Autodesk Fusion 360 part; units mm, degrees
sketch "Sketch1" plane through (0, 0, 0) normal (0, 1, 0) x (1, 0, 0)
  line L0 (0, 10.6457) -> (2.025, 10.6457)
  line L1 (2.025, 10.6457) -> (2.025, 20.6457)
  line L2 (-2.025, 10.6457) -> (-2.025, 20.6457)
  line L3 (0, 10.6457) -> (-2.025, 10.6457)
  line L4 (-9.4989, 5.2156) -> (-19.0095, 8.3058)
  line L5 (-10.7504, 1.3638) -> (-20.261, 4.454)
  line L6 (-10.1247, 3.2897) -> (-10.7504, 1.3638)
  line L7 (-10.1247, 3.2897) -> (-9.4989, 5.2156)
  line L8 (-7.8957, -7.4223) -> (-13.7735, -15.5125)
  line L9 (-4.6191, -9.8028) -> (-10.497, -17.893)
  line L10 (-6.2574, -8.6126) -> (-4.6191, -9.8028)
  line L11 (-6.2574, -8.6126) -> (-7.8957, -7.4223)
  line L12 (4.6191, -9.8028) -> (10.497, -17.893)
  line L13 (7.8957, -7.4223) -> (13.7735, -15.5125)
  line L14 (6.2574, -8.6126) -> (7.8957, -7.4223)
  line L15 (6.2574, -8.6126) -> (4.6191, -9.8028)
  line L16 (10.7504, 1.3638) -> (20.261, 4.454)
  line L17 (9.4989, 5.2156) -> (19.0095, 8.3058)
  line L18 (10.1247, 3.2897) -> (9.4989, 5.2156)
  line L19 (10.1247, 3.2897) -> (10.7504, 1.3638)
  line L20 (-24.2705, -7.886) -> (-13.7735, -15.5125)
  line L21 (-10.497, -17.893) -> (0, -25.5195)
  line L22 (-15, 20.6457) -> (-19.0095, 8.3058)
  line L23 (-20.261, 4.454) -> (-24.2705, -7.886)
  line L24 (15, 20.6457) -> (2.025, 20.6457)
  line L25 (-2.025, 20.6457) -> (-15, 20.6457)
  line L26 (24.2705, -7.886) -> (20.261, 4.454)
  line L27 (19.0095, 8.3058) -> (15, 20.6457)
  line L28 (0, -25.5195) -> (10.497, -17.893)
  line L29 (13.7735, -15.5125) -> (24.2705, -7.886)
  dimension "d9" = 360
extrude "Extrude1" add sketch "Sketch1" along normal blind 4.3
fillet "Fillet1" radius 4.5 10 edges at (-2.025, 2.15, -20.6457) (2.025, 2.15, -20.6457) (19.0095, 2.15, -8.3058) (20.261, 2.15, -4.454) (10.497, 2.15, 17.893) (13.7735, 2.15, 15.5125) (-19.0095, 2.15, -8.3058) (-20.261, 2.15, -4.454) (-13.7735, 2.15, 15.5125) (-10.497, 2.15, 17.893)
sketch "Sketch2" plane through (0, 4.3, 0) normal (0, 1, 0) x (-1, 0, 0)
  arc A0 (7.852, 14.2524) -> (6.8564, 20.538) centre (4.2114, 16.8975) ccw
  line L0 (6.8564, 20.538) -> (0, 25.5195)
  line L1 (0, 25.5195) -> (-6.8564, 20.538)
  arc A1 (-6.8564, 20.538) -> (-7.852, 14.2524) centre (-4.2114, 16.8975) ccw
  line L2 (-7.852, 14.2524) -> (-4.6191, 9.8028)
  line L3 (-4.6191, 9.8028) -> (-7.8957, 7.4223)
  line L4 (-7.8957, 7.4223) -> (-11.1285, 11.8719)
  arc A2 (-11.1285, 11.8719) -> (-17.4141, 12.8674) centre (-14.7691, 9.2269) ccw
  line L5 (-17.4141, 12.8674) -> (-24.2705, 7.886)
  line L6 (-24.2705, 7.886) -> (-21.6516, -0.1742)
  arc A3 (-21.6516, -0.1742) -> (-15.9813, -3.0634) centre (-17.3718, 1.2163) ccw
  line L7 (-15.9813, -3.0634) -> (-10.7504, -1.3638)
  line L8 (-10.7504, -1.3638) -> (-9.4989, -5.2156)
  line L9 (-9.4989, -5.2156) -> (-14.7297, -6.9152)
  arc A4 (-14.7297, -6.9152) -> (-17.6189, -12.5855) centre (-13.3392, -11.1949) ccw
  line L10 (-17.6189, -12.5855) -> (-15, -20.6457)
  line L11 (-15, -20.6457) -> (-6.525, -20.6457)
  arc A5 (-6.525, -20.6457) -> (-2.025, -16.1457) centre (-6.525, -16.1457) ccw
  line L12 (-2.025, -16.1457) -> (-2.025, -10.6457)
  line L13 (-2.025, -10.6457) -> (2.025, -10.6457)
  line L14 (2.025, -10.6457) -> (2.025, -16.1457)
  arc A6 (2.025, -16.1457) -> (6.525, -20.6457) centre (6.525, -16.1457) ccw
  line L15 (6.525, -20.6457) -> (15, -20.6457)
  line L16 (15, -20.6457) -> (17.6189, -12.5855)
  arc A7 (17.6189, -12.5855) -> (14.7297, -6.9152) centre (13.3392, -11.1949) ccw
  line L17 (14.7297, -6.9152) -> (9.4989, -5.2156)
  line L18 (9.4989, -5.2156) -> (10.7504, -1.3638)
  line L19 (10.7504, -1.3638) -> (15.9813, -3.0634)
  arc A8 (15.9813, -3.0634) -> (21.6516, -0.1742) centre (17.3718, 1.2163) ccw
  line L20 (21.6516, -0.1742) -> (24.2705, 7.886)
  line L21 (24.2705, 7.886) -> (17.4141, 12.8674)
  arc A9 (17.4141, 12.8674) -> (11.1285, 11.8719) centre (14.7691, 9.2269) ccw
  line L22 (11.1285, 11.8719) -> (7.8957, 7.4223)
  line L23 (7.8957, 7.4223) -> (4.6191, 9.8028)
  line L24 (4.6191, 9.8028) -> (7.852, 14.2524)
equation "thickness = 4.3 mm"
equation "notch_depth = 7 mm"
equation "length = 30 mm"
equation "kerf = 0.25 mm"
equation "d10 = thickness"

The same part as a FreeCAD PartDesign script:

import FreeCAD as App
import Part
import Sketcher
from FreeCAD import Vector
Q = App.Units.Quantity


def edges_at(feature, points):
    """Names of the edges that pass closest to the given points."""
    edges = feature.Shape.Edges
    near = lambda p: min(range(len(edges)), key=lambda i: edges[i].distToShape(Part.Vertex(*p))[0])
    return sorted({f"Edge{near(p) + 1}" for p in points})

doc = App.newDocument("Part")
body = doc.addObject("PartDesign::Body", "Body")

# Sketch on XZ plane
sketch1 = body.newObject("Sketcher::SketchObject", "Sketch")
sketch1.AttachmentSupport = (doc.getObject("XZ_Plane"), [""])
sketch1.MapMode = "FlatFace"
sketch1.addGeometry([
    Part.LineSegment(Vector(2.025, -10.6457, 0), Vector(-2.025, -10.6457, 0)),  # 0
    Part.LineSegment(Vector(-2.025, -10.6457, 0), Vector(-2.025, -20.6457, 0)),  # 1
    Part.LineSegment(Vector(-2.025, -20.6457, 0), Vector(-15, -20.6457, 0)),  # 2
    Part.LineSegment(Vector(-15, -20.6457, 0), Vector(-19.0095, -8.3058, 0)),  # 3
    Part.LineSegment(Vector(-19.0095, -8.3058, 0), Vector(-9.4989, -5.2156, 0)),  # 4
    Part.LineSegment(Vector(-9.4989, -5.2156, 0), Vector(-10.1247, -3.2897, 0)),  # 5
    Part.LineSegment(Vector(-10.1247, -3.2897, 0), Vector(-10.7504, -1.3638, 0)),  # 6
    Part.LineSegment(Vector(-10.7504, -1.3638, 0), Vector(-20.261, -4.454, 0)),  # 7
    Part.LineSegment(Vector(-20.261, -4.454, 0), Vector(-24.2705, 7.886, 0)),  # 8
    Part.LineSegment(Vector(-24.2705, 7.886, 0), Vector(-13.7735, 15.5125, 0)),  # 9
    Part.LineSegment(Vector(-13.7735, 15.5125, 0), Vector(-7.8957, 7.4223, 0)),  # 10
    Part.LineSegment(Vector(-7.8957, 7.4223, 0), Vector(-6.2574, 8.6126, 0)),  # 11
    Part.LineSegment(Vector(-6.2574, 8.6126, 0), Vector(-4.6191, 9.8028, 0)),  # 12
    Part.LineSegment(Vector(-4.6191, 9.8028, 0), Vector(-10.497, 17.893, 0)),  # 13
    Part.LineSegment(Vector(-10.497, 17.893, 0), Vector(0, 25.5195, 0)),  # 14
    Part.LineSegment(Vector(0, 25.5195, 0), Vector(10.497, 17.893, 0)),  # 15
    Part.LineSegment(Vector(10.497, 17.893, 0), Vector(4.6191, 9.8028, 0)),  # 16
    Part.LineSegment(Vector(4.6191, 9.8028, 0), Vector(6.2574, 8.6126, 0)),  # 17
    Part.LineSegment(Vector(6.2574, 8.6126, 0), Vector(7.8957, 7.4223, 0)),  # 18
    Part.LineSegment(Vector(7.8957, 7.4223, 0), Vector(13.7735, 15.5125, 0)),  # 19
    Part.LineSegment(Vector(13.7735, 15.5125, 0), Vector(24.2705, 7.886, 0)),  # 20
    Part.LineSegment(Vector(24.2705, 7.886, 0), Vector(20.261, -4.454, 0)),  # 21
    Part.LineSegment(Vector(20.261, -4.454, 0), Vector(10.7504, -1.3638, 0)),  # 22
    Part.LineSegment(Vector(10.7504, -1.3638, 0), Vector(10.1247, -3.2897, 0)),  # 23
    Part.LineSegment(Vector(10.1247, -3.2897, 0), Vector(9.4989, -5.2156, 0)),  # 24
    Part.LineSegment(Vector(9.4989, -5.2156, 0), Vector(19.0095, -8.3058, 0)),  # 25
    Part.LineSegment(Vector(19.0095, -8.3058, 0), Vector(15, -20.6457, 0)),  # 26
    Part.LineSegment(Vector(15, -20.6457, 0), Vector(2.025, -20.6457, 0)),  # 27
    Part.LineSegment(Vector(2.025, -20.6457, 0), Vector(2.025, -10.6457, 0)),  # 28
], False)
sketch1.addConstraint([
    Sketcher.Constraint("Coincident", 0, 2, 1, 1),
    Sketcher.Constraint("Coincident", 1, 2, 2, 1),
    Sketcher.Constraint("Coincident", 2, 2, 3, 1),
    Sketcher.Constraint("Coincident", 3, 2, 4, 1),
    Sketcher.Constraint("Coincident", 4, 2, 5, 1),
    Sketcher.Constraint("Coincident", 5, 2, 6, 1),
    Sketcher.Constraint("Coincident", 6, 2, 7, 1),
    Sketcher.Constraint("Coincident", 7, 2, 8, 1),
    Sketcher.Constraint("Coincident", 8, 2, 9, 1),
    Sketcher.Constraint("Coincident", 9, 2, 10, 1),
    Sketcher.Constraint("Coincident", 10, 2, 11, 1),
    Sketcher.Constraint("Coincident", 11, 2, 12, 1),
    Sketcher.Constraint("Coincident", 12, 2, 13, 1),
    Sketcher.Constraint("Coincident", 13, 2, 14, 1),
    Sketcher.Constraint("Coincident", 14, 2, 15, 1),
    Sketcher.Constraint("Coincident", 15, 2, 16, 1),
    Sketcher.Constraint("Coincident", 16, 2, 17, 1),
    Sketcher.Constraint("Coincident", 17, 2, 18, 1),
    Sketcher.Constraint("Coincident", 18, 2, 19, 1),
    Sketcher.Constraint("Coincident", 19, 2, 20, 1),
    Sketcher.Constraint("Coincident", 20, 2, 21, 1),
    Sketcher.Constraint("Coincident", 21, 2, 22, 1),
    Sketcher.Constraint("Coincident", 22, 2, 23, 1),
    Sketcher.Constraint("Coincident", 23, 2, 24, 1),
    Sketcher.Constraint("Coincident", 24, 2, 25, 1),
    Sketcher.Constraint("Coincident", 25, 2, 26, 1),
    Sketcher.Constraint("Coincident", 26, 2, 27, 1),
    Sketcher.Constraint("Coincident", 27, 2, 28, 1),
    Sketcher.Constraint("Coincident", 28, 2, 0, 1),
    Sketcher.Constraint("Horizontal", 0),
    Sketcher.Constraint("Vertical", 1),
    Sketcher.Constraint("Horizontal", 2),
    Sketcher.Constraint("Horizontal", 27),
    Sketcher.Constraint("Vertical", 28),
    Sketcher.Constraint("Symmetric", 13, 2, 15, 2, -2),
    Sketcher.Constraint("Symmetric", 12, 2, 16, 2, -2),
    Sketcher.Constraint("Symmetric", 11, 2, 17, 2, -2),
    Sketcher.Constraint("Symmetric", 10, 2, 18, 2, -2),
    Sketcher.Constraint("Symmetric", 9, 2, 19, 2, -2),
    Sketcher.Constraint("Symmetric", 8, 2, 20, 2, -2),
    Sketcher.Constraint("Symmetric", 7, 2, 21, 2, -2),
    Sketcher.Constraint("Symmetric", 6, 2, 22, 2, -2),
    Sketcher.Constraint("Symmetric", 5, 2, 23, 2, -2),
    Sketcher.Constraint("Symmetric", 4, 2, 24, 2, -2),
    Sketcher.Constraint("Symmetric", 3, 2, 25, 2, -2),
    Sketcher.Constraint("Symmetric", 2, 2, 26, 2, -2),
    Sketcher.Constraint("PointOnObject", 14, 2, -2),
    Sketcher.Constraint("Perpendicular", 3, 4),
    Sketcher.Constraint("Perpendicular", 4, 5),
    Sketcher.Constraint("Parallel", 5, 6),
    Sketcher.Constraint("Perpendicular", 6, 7),
    Sketcher.Constraint("Perpendicular", 7, 8),
    Sketcher.Constraint("Perpendicular", 9, 10),
    Sketcher.Constraint("Perpendicular", 10, 11),
    Sketcher.Constraint("Parallel", 11, 12),
    Sketcher.Constraint("Perpendicular", 12, 13),
    Sketcher.Constraint("Perpendicular", 13, 14),
    Sketcher.Constraint("Equal", 2, 27),
    Sketcher.Constraint("Equal", 5, 6),
    Sketcher.Constraint("Equal", 4, 7),
    Sketcher.Constraint("Equal", 3, 8),
    Sketcher.Constraint("Equal", 8, 9),
    Sketcher.Constraint("Equal", 7, 10),
    Sketcher.Constraint("Equal", 6, 11),
    Sketcher.Constraint("Equal", 11, 12),
    Sketcher.Constraint("Equal", 10, 13),
    Sketcher.Constraint("Equal", 9, 14),
    Sketcher.Constraint("DistanceY", 1, 2, 1, 1, Q("10 mm")),
    Sketcher.Constraint("Angle", 3, Q("108 deg")),
    Sketcher.Constraint("Angle", 9, Q("36 deg")),
    Sketcher.Constraint("Distance", 4, Q("10 mm")),
    Sketcher.Constraint("DistanceX", 2, 2, -1, 1, Q("15 mm")),
    Sketcher.Constraint("DistanceX", 0, 2, 0, 1, Q("4.05 mm")),
    Sketcher.Constraint("DistanceY", 11, 2, 9, 2, Q("6.9 mm")),
    Sketcher.Constraint("DistanceY", 7, 2, -1, 1, Q("4.454 mm")),
])
pad1 = body.newObject("PartDesign::Pad", "Pad")
pad1.Profile = sketch1
pad1.Length = 4.3
pad1.Reversed = True
doc.recompute()

fillet = body.newObject("PartDesign::Fillet", "Fillet")
fillet.Base = (pad1, edges_at(pad1, [
    (-2.025, 2.15, -20.646),
    (2.025, 2.15, -20.646),
    (19.009, 2.15, -8.306),
    (20.261, 2.15, -4.454),
    (10.497, 2.15, 17.893),
    (13.774, 2.15, 15.512),
    (-19.009, 2.15, -8.306),
    (-20.261, 2.15, -4.454),
    (-13.774, 2.15, 15.512),
    (-10.497, 2.15, 17.893),
]))
fillet.Radius = 4.5

doc.recompute()
